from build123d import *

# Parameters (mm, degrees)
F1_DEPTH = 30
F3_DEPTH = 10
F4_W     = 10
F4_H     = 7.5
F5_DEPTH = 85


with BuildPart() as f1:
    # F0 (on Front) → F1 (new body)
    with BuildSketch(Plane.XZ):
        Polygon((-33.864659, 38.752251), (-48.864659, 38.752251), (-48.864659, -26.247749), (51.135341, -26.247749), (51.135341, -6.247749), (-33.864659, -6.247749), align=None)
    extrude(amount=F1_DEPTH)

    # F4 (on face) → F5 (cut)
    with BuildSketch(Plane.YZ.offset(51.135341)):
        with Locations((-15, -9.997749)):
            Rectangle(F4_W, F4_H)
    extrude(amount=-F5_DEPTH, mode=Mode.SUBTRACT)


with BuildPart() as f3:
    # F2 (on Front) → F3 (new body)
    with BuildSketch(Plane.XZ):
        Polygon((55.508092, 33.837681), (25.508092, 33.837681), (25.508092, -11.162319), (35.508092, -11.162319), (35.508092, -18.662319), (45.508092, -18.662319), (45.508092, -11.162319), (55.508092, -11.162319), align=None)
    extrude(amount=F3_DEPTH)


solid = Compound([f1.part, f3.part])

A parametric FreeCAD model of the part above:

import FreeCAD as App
import Part
import Sketcher

V = App.Vector

doc = App.newDocument("Part")
body = doc.addObject("PartDesign::Body", "Body")

# Sketch on XZ plane
sketch1 = doc.addObject("Sketcher::SketchObject", "Sketch")
body.addObject(sketch1)
sketch1.AttachmentSupport = (doc.XZ_Plane, [""])
sketch1.MapMode = "FlatFace"
sketch1.addGeometry([
    Part.LineSegment(V(-34, 39, 0), V(-49, 39, 0)),  # 0
    Part.LineSegment(V(-49, 39, 0), V(-49, -26, 0)),  # 1
    Part.LineSegment(V(-49, -26, 0), V(51, -26, 0)),  # 2
    Part.LineSegment(V(51, -26, 0), V(51, -6, 0)),  # 3
    Part.LineSegment(V(51, -6, 0), V(-34, -6, 0)),  # 4
    Part.LineSegment(V(-34, -6, 0), V(-34, 39, 0)),  # 5
], False)
sketch1.addConstraint([
    Sketcher.Constraint("Coincident", 0, 2, 1, 1),
    Sketcher.Constraint("Coincident", 1, 2, 2, 1),
    Sketcher.Constraint("Coincident", 2, 2, 3, 1),
    Sketcher.Constraint("Coincident", 3, 2, 4, 1),
    Sketcher.Constraint("Coincident", 4, 2, 5, 1),
    Sketcher.Constraint("Coincident", 5, 2, 0, 1),
    Sketcher.Constraint("Horizontal", 0),
    Sketcher.Constraint("Vertical", 1),
    Sketcher.Constraint("Horizontal", 2),
    Sketcher.Constraint("Vertical", 3),
    Sketcher.Constraint("Horizontal", 4),
    Sketcher.Constraint("Vertical", 5),
    Sketcher.Constraint("DistanceX", 0, 2, 0, 1, 15.0),
    Sketcher.Constraint("DistanceX", 2, 1, 2, 2, 100.0),
    Sketcher.Constraint("DistanceY", 1, 2, 1, 1, 65.0),
    Sketcher.Constraint("DistanceY", 3, 1, 3, 2, 20.0),
    Sketcher.Constraint("DistanceX", 0, 2, -1, 1, 48.864659),
    Sketcher.Constraint("DistanceY", -1, 1, 0, 2, 38.752251),
])
pad1 = doc.addObject("PartDesign::Pad", "Pad")
body.addObject(pad1)
pad1.Profile = sketch1
pad1.Length = 30

# Sketch on YZ plane
sketch2 = doc.addObject("Sketcher::SketchObject", "Sketch001")
body.addObject(sketch2)
sketch2.AttachmentSupport = (doc.YZ_Plane, [""])
sketch2.MapMode = "FlatFace"
sketch2.AttachmentOffset = App.Placement(V(0, 0, 51.135341), App.Rotation())
sketch2.addGeometry([
    Part.LineSegment(V(-20, -6, 0), V(-20, -14, 0)),
    Part.LineSegment(V(-20, -14, 0), V(-10, -14, 0)),
    Part.LineSegment(V(-10, -14, 0), V(-10, -6, 0)),
    Part.LineSegment(V(-10, -6, 0), V(-20, -6, 0)),
], False)
sketch2.addConstraint([
    Sketcher.Constraint("Coincident", 0, 2, 1, 1),
    Sketcher.Constraint("Coincident", 1, 2, 2, 1),
    Sketcher.Constraint("Coincident", 2, 2, 3, 1),
    Sketcher.Constraint("Coincident", 3, 2, 0, 1),
    Sketcher.Constraint("Vertical", 0),
    Sketcher.Constraint("Horizontal", 1),
    Sketcher.Constraint("Vertical", 2),
    Sketcher.Constraint("Horizontal", 3),
    Sketcher.Constraint("DistanceX", 1, 1, 1, 2, 10.0),
    Sketcher.Constraint("DistanceY", 0, 2, 0, 1, 7.5),
    Sketcher.Constraint("DistanceX", 0, 2, -1, 1, 20.0),
    Sketcher.Constraint("DistanceY", 0, 2, -1, 1, 13.747749),
])
pocket1 = doc.addObject("PartDesign::Pocket", "Pocket")
body.addObject(pocket1)
pocket1.Profile = sketch2
pocket1.Length = 85
body2 = doc.addObject("PartDesign::Body", "Body001")

# Sketch on XZ plane
sketch3 = doc.addObject("Sketcher::SketchObject", "Sketch002")
body2.addObject(sketch3)
sketch3.AttachmentSupport = (doc.getObject("XZ_Plane001"), [""])
sketch3.MapMode = "FlatFace"
sketch3.addGeometry([
    Part.LineSegment(V(56, 34, 0), V(26, 34, 0)),  # 0
    Part.LineSegment(V(26, 34, 0), V(26, -11, 0)),  # 1
    Part.LineSegment(V(26, -11, 0), V(36, -11, 0)),  # 2
    Part.LineSegment(V(36, -11, 0), V(36, -19, 0)),  # 3
    Part.LineSegment(V(36, -19, 0), V(46, -19, 0)),  # 4
    Part.LineSegment(V(46, -19, 0), V(46, -11, 0)),  # 5
    Part.LineSegment(V(46, -11, 0), V(56, -11, 0)),  # 6
    Part.LineSegment(V(56, -11, 0), V(56, 34, 0)),  # 7
], False)
sketch3.addConstraint([
    Sketcher.Constraint("Coincident", 0, 2, 1, 1),
    Sketcher.Constraint("Coincident", 1, 2, 2, 1),
    Sketcher.Constraint("Coincident", 2, 2, 3, 1),
    Sketcher.Constraint("Coincident", 3, 2, 4, 1),
    Sketcher.Constraint("Coincident", 4, 2, 5, 1),
    Sketcher.Constraint("Coincident", 5, 2, 6, 1),
    Sketcher.Constraint("Coincident", 6, 2, 7, 1),
    Sketcher.Constraint("Coincident", 7, 2, 0, 1),
    Sketcher.Constraint("Horizontal", 0),
    Sketcher.Constraint("Vertical", 1),
    Sketcher.Constraint("Horizontal", 2),
    Sketcher.Constraint("Vertical", 3),
    Sketcher.Constraint("Horizontal", 4),
    Sketcher.Constraint("Vertical", 5),
    Sketcher.Constraint("Horizontal", 6),
    Sketcher.Constraint("Vertical", 7),
    Sketcher.Constraint("Horizontal", 2, 2, 5, 2),
    Sketcher.Constraint("Equal", 2, 4),
    Sketcher.Constraint("Equal", 4, 6),
    Sketcher.Constraint("DistanceX", 0, 2, 0, 1, 30.0),
    Sketcher.Constraint("DistanceY", 1, 2, 1, 1, 45.0),
    Sketcher.Constraint("DistanceY", 3, 2, 3, 1, 7.5),
    Sketcher.Constraint("DistanceY", -1, 1, 0, 2, 33.837681),
    Sketcher.Constraint("DistanceX", -1, 1, 2, 2, 35.508092),
])
pad2 = doc.addObject("PartDesign::Pad", "Pad001")
body2.addObject(pad2)
pad2.Profile = sketch3
pad2.Length = 10

doc.recompute()
